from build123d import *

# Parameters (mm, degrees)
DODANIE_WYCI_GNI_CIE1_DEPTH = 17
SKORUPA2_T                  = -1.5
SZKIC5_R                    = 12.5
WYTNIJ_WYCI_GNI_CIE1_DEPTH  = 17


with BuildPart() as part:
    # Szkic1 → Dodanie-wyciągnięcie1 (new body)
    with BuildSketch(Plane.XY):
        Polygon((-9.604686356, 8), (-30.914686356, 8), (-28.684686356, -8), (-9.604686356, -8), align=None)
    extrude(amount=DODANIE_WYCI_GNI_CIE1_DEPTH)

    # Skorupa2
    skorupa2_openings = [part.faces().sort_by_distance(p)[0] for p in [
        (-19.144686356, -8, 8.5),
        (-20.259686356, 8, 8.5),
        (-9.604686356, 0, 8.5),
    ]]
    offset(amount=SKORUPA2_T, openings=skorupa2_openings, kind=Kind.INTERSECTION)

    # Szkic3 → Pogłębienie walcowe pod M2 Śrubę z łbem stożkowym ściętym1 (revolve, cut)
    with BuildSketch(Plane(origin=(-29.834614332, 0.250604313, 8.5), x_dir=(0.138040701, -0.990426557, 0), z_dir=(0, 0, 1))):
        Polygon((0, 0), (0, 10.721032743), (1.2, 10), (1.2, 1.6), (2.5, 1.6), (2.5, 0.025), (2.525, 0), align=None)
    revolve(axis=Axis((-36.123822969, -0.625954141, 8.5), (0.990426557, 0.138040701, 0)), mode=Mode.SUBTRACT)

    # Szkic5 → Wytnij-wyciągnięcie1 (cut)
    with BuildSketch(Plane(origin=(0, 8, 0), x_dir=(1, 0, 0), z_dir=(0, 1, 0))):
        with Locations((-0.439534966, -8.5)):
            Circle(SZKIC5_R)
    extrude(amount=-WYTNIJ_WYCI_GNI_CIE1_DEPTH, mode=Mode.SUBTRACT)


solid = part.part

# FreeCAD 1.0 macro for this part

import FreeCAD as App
import Part
import Sketcher
Q = App.Units.Quantity


def faces_at(feature, points):
    """Names of the faces that lie closest to the given points."""
    faces = feature.Shape.Faces
    near = lambda p: min(range(len(faces)), key=lambda i: faces[i].distToShape(Part.Vertex(*p))[0])
    return sorted({f"Face{near(p) + 1}" for p in points})

doc = App.newDocument("Part")
params = doc.addObject("Spreadsheet::Sheet", "Params")
for row, (alias, value) in enumerate([
    ("sketch1_height", "16 mm"),
    ("sketch1_width", "21.31 mm"),
    ("sketch1_width2", "19.08 mm"),
    ("pad1_length", "17 mm"),
    ("thickness_wall", "1.5 mm"),
    ("sketch2_length", "1.3 mm"),
    ("sketch2_length2", "8.4 mm"),
    ("groove_angle", "360 deg"),
    ("sketch3_diameter", "25 mm"),
    ("pocket1_length", "17 mm"),
], start=1):
    params.set(f"A{row}", alias)
    params.set(f"B{row}", "=" + value)
    params.setAlias(f"B{row}", alias)

body = doc.addObject("PartDesign::Body", "Body")

sketch1 = doc.addObject("Sketcher::SketchObject", "Sketch")
body.addObject(sketch1)
sketch1.AttachmentSupport = (doc.XY_Plane, [""])
sketch1.MapMode = "FlatFace"
sketch1.addGeometry([
    Part.LineSegment(App.Vector(-9.604686, 8, 0), App.Vector(-30.914686, 8, 0)),
    Part.LineSegment(App.Vector(-30.914686, 8, 0), App.Vector(-28.684686, -8, 0)),
    Part.LineSegment(App.Vector(-28.684686, -8, 0), App.Vector(-9.604686, -8, 0)),
    Part.LineSegment(App.Vector(-9.604686, -8, 0), App.Vector(-9.604686, 8, 0)),
], False)
sketch1.addConstraint([
    Sketcher.Constraint("Coincident", 0, 2, 1, 1),
    Sketcher.Constraint("Coincident", 1, 2, 2, 1),
    Sketcher.Constraint("Coincident", 2, 2, 3, 1),
    Sketcher.Constraint("Coincident", 3, 2, 0, 1),
    Sketcher.Constraint("Horizontal", 0),
    Sketcher.Constraint("Horizontal", 2),
    Sketcher.Constraint("Vertical", 3),
    Sketcher.Constraint("DistanceY", 3, 1, 3, 2, Q("16 mm")),
    Sketcher.Constraint("DistanceY", -1, 1, 0, 2, Q("8 mm")),
    Sketcher.Constraint("DistanceX", 0, 2, 0, 1, Q("21.31 mm")),
    Sketcher.Constraint("DistanceX", 2, 1, 2, 2, Q("19.08 mm")),
    Sketcher.Constraint("DistanceX", 0, 2, -1, 1, Q("30.914686 mm")),
])
sketch1.setExpression("Constraints[7]", "Params.sketch1_height")
sketch1.setExpression("Constraints[9]", "Params.sketch1_width")
sketch1.setExpression("Constraints[10]", "Params.sketch1_width2")
pad1 = doc.addObject("PartDesign::Pad", "Pad")
body.addObject(pad1)
pad1.Profile = sketch1
pad1.setExpression("Length", "Params.pad1_length")
doc.recompute()

thickness = doc.addObject("PartDesign::Thickness", "Thickness")
body.addObject(thickness)
thickness.Base = (pad1, faces_at(pad1, [(-19.145, -8, 8.5), (-20.26, 8, 8.5), (-9.605, 0, 8.5)]))
thickness.setExpression("Value", "Params.thickness_wall")
thickness.Reversed = True
thickness.Join = "Intersection"

sketch2 = doc.addObject("Sketcher::SketchObject", "Sketch001")
body.addObject(sketch2)
sketch2.AttachmentSupport = (doc.XY_Plane, [""])
sketch2.MapMode = "FlatFace"
sketch2.AttachmentOffset = App.Placement(App.Vector(0, 0, 8.5), App.Rotation())
sketch2.addGeometry([
    Part.LineSegment(App.Vector(-19.216219, 1.730543, 0), App.Vector(-29.834614, 0.250604, 0)),
    Part.LineSegment(App.Vector(-29.834614, 0.250604, 0), App.Vector(-29.486062, -2.250223, 0)),
    Part.LineSegment(App.Vector(-29.486062, -2.250223, 0), App.Vector(-29.464752, -2.222011, 0)),
    Part.LineSegment(App.Vector(-29.464752, -2.222011, 0), App.Vector(-27.90483, -2.004597, 0)),
    Part.LineSegment(App.Vector(-27.90483, -2.004597, 0), App.Vector(-28.084283, -0.717042, 0)),
    Part.LineSegment(App.Vector(-28.084283, -0.717042, 0), App.Vector(-19.7647, 0.442499, 0)),
    Part.LineSegment(App.Vector(-19.7647, 0.442499, 0), App.Vector(-19.216219, 1.730543, 0)),
], False)
sketch2.addGeometry(Part.LineSegment(App.Vector(-29.834614, 0.250604, 0), App.Vector(-19.216219, 1.730543, 0)), True)
sketch2.addConstraint([
    Sketcher.Constraint("Coincident", 0, 2, 1, 1),
    Sketcher.Constraint("Coincident", 1, 2, 2, 1),
    Sketcher.Constraint("Coincident", 2, 2, 3, 1),
    Sketcher.Constraint("Coincident", 3, 2, 4, 1),
    Sketcher.Constraint("Coincident", 4, 2, 5, 1),
    Sketcher.Constraint("Coincident", 5, 2, 6, 1),
    Sketcher.Constraint("Coincident", 6, 2, 0, 1),
    Sketcher.Constraint("Coincident", 7, 1, 0, 2),
    Sketcher.Constraint("Coincident", 7, 2, 6, 2),
    Sketcher.Constraint("Perpendicular", 0, 1),
    Sketcher.Constraint("Perpendicular", 1, 3),
    Sketcher.Constraint("Perpendicular", 3, 4),
    Sketcher.Constraint("Perpendicular", 4, 5),
    Sketcher.Constraint("Distance", 4, Q("1.3 mm")),
    Sketcher.Constraint("Distance", 5, Q("8.4 mm")),
    Sketcher.Constraint("Distance", 1, Q("2.525 mm")),
    Sketcher.Constraint("Distance", 3, Q("1.575 mm")),
    Sketcher.Constraint("DistanceX", 5, 2, -1, 1, Q("19.7647 mm")),
    Sketcher.Constraint("DistanceY", -1, 1, 5, 2, Q("0.442499 mm")),
    Sketcher.Constraint("DistanceY", 3, 2, 0, 2, Q("2.255201 mm")),
    Sketcher.Constraint("Distance", 6, Q("1.39996 mm")),
    Sketcher.Constraint("DistanceX", 1, 2, -1, 1, Q("29.486062 mm")),
    Sketcher.Constraint("DistanceX", 2, 2, -1, 1, Q("29.464752 mm")),
])
sketch2.setExpression("Constraints[13]", "Params.sketch2_length")
sketch2.setExpression("Constraints[14]", "Params.sketch2_length2")
groove = doc.addObject("PartDesign::Groove", "Groove")
body.addObject(groove)
groove.Profile = sketch2
groove.ReferenceAxis = (sketch2, ["Axis0"])
groove.setExpression("Angle", "Params.groove_angle")

sketch3 = doc.addObject("Sketcher::SketchObject", "Sketch002")
body.addObject(sketch3)
sketch3.AttachmentSupport = (doc.XZ_Plane, [""])
sketch3.MapMode = "FlatFace"
sketch3.AttachmentOffset = App.Placement(App.Vector(0, 0, -8), App.Rotation())
sketch3.addGeometry(Part.Circle(App.Vector(-0.439535, 8.5, 0), App.Vector(0, 0, 1), 12.5), False)
sketch3.addConstraint([
    Sketcher.Constraint("Diameter", 0, Q("25 mm")),
    Sketcher.Constraint("DistanceY", -1, 1, 0, 3, Q("8.5 mm")),
    Sketcher.Constraint("DistanceX", 0, 3, -1, 1, Q("0.439535 mm")),
])
sketch3.setExpression("Constraints[0]", "Params.sketch3_diameter")
pocket1 = doc.addObject("PartDesign::Pocket", "Pocket")
body.addObject(pocket1)
pocket1.Profile = sketch3
pocket1.setExpression("Length", "Params.pocket1_length")
pocket1.Reversed = True

doc.recompute()
